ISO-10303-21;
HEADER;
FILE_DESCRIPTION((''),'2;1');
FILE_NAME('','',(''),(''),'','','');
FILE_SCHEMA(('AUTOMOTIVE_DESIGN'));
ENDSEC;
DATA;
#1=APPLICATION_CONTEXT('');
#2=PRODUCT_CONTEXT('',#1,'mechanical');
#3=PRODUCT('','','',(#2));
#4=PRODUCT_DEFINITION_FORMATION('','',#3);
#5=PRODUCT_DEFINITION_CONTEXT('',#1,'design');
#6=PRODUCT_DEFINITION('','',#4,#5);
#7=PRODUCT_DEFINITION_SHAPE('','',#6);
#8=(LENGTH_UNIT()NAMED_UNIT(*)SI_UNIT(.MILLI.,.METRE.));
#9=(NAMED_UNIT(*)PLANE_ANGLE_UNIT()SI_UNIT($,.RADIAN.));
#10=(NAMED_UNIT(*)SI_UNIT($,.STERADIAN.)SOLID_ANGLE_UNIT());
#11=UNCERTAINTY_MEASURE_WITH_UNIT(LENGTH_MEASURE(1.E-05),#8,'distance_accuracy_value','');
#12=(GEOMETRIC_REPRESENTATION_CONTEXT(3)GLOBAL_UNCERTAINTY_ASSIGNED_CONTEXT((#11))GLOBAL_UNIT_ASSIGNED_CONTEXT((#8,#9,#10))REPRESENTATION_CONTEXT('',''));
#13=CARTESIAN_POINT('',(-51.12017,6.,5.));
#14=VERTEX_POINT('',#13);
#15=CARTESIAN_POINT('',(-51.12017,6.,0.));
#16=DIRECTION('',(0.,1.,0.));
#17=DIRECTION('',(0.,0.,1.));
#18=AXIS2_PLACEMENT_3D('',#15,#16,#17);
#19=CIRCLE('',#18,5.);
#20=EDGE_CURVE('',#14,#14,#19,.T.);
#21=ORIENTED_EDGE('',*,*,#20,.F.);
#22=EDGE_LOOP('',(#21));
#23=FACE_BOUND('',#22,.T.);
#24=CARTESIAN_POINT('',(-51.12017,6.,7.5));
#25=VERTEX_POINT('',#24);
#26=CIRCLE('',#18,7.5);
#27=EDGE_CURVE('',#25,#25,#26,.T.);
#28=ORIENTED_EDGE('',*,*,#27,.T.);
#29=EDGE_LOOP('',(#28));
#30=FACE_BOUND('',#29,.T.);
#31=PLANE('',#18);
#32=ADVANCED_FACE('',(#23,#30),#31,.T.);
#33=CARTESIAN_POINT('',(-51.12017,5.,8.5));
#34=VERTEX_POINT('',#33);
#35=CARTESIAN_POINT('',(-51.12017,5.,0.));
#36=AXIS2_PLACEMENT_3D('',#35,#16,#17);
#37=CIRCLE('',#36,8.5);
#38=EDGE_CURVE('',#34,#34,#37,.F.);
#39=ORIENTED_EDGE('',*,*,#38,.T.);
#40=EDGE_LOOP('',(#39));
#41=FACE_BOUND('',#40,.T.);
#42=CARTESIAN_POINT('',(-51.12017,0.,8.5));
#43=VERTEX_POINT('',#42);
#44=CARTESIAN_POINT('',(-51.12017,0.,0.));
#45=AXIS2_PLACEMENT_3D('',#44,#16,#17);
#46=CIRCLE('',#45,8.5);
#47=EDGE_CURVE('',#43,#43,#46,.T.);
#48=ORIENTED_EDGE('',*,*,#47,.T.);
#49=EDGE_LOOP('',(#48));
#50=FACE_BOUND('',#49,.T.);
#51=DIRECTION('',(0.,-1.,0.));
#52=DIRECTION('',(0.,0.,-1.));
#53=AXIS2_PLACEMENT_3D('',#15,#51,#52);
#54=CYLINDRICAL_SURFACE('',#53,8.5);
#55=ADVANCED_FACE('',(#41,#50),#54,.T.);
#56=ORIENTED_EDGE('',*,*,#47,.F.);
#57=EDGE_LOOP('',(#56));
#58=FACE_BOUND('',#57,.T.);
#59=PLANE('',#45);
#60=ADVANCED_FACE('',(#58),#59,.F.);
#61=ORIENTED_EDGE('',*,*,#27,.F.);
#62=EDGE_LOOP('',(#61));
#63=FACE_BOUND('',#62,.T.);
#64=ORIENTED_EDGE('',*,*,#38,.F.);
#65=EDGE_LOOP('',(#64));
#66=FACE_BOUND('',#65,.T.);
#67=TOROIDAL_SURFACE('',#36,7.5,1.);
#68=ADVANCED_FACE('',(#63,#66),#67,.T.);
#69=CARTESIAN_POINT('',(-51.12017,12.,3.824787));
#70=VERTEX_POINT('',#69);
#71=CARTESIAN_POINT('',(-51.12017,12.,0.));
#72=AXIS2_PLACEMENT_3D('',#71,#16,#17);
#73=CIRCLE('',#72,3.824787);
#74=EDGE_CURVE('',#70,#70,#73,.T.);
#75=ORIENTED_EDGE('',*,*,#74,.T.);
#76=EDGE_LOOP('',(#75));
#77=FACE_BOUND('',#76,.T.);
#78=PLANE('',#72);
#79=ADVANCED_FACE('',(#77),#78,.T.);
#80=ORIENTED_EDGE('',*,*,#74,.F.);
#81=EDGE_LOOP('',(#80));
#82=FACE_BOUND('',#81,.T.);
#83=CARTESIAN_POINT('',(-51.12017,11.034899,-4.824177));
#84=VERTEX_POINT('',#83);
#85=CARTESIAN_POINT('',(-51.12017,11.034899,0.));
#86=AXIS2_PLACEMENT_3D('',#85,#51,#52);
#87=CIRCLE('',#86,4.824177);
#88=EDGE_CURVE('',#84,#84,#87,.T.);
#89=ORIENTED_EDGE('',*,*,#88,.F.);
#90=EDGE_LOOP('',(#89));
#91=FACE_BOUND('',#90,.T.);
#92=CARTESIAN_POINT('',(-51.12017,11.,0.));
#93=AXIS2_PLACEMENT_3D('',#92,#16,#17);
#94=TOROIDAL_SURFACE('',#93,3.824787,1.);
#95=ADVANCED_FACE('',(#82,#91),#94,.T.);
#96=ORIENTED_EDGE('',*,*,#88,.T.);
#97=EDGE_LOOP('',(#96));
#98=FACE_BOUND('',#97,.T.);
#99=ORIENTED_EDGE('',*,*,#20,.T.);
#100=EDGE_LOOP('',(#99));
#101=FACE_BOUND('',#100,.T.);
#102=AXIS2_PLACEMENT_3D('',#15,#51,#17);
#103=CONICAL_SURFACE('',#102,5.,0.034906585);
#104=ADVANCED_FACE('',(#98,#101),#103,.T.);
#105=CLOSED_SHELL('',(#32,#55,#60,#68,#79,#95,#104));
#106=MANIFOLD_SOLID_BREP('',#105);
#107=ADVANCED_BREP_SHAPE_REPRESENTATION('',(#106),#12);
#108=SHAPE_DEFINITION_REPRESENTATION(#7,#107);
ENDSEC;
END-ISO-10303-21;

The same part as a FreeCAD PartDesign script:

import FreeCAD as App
import Part
import Sketcher
Q = App.Units.Quantity


def edges_at(feature, points):
    """Names of the edges that pass closest to the given points."""
    edges = feature.Shape.Edges
    near = lambda p: min(range(len(edges)), key=lambda i: edges[i].distToShape(Part.Vertex(*p))[0])
    return sorted({f"Edge{near(p) + 1}" for p in points})

doc = App.newDocument("Part")
params = doc.addObject("Spreadsheet::Sheet", "Params")
for row, (alias, value) in enumerate([
    ("sketch1_diameter", "17 mm"),
    ("pad1_length", "6 mm"),
    ("fillet_radius", "1 mm"),
    ("sketch2_diameter", "10 mm"),
    ("pad2_length", "6 mm"),
    ("pad2_taper", "-2 deg"),
    ("fillet2_radius", "1 mm"),
], start=1):
    params.set(f"A{row}", alias)
    params.set(f"B{row}", "=" + value)
    params.setAlias(f"B{row}", alias)

body = doc.addObject("PartDesign::Body", "Body")

# Sketch on XZ plane
sketch1 = body.newObject("Sketcher::SketchObject", "Sketch")
sketch1.AttachmentSupport = (doc.getObject("XZ_Plane"), [""])
sketch1.MapMode = "FlatFace"
sketch1.addGeometry(Part.Circle(App.Vector(-51.12017, 0, 0), App.Vector(0, 0, 1), 8.5), False)
sketch1.addConstraint([
    Sketcher.Constraint("PointOnObject", 0, 3, -1),
    Sketcher.Constraint("Diameter", 0, Q("17 mm")),
    Sketcher.Constraint("DistanceX", 0, 3, -1, 1, Q("51.12017 mm")),
])
sketch1.setExpression("Constraints[1]", "Params.sketch1_diameter")
pad1 = body.newObject("PartDesign::Pad", "Pad")
pad1.Profile = sketch1
pad1.setExpression("Length", "Params.pad1_length")
pad1.Reversed = True
doc.recompute()

fillet = body.newObject("PartDesign::Fillet", "Fillet")
fillet.Base = (pad1, edges_at(pad1, [(-51.12, 6, -8.5)]))
fillet.setExpression("Radius", "Params.fillet_radius")

# Sketch on XZ plane
sketch2 = body.newObject("Sketcher::SketchObject", "Sketch001")
sketch2.AttachmentSupport = (doc.getObject("XZ_Plane"), [""])
sketch2.MapMode = "FlatFace"
sketch2.AttachmentOffset = App.Placement(App.Vector(0, 0, -6), App.Rotation())
sketch2.addGeometry(Part.Circle(App.Vector(-51.12017, 0, 0), App.Vector(0, 0, 1), 5), False)
sketch2.addConstraint([
    Sketcher.Constraint("PointOnObject", 0, 3, -1),
    Sketcher.Constraint("Diameter", 0, Q("10 mm")),
    Sketcher.Constraint("DistanceX", 0, 3, -1, 1, Q("51.12017 mm")),
])
sketch2.setExpression("Constraints[1]", "Params.sketch2_diameter")
pad2 = body.newObject("PartDesign::Pad", "Pad001")
pad2.Profile = sketch2
pad2.setExpression("Length", "Params.pad2_length")
pad2.Reversed = True
pad2.setExpression("TaperAngle", "Params.pad2_taper")
doc.recompute()

fillet2 = body.newObject("PartDesign::Fillet", "Fillet001")
fillet2.Base = (pad2, edges_at(pad2, [(-55.911, 12, 0)]))
fillet2.setExpression("Radius", "Params.fillet2_radius")

doc.recompute()
